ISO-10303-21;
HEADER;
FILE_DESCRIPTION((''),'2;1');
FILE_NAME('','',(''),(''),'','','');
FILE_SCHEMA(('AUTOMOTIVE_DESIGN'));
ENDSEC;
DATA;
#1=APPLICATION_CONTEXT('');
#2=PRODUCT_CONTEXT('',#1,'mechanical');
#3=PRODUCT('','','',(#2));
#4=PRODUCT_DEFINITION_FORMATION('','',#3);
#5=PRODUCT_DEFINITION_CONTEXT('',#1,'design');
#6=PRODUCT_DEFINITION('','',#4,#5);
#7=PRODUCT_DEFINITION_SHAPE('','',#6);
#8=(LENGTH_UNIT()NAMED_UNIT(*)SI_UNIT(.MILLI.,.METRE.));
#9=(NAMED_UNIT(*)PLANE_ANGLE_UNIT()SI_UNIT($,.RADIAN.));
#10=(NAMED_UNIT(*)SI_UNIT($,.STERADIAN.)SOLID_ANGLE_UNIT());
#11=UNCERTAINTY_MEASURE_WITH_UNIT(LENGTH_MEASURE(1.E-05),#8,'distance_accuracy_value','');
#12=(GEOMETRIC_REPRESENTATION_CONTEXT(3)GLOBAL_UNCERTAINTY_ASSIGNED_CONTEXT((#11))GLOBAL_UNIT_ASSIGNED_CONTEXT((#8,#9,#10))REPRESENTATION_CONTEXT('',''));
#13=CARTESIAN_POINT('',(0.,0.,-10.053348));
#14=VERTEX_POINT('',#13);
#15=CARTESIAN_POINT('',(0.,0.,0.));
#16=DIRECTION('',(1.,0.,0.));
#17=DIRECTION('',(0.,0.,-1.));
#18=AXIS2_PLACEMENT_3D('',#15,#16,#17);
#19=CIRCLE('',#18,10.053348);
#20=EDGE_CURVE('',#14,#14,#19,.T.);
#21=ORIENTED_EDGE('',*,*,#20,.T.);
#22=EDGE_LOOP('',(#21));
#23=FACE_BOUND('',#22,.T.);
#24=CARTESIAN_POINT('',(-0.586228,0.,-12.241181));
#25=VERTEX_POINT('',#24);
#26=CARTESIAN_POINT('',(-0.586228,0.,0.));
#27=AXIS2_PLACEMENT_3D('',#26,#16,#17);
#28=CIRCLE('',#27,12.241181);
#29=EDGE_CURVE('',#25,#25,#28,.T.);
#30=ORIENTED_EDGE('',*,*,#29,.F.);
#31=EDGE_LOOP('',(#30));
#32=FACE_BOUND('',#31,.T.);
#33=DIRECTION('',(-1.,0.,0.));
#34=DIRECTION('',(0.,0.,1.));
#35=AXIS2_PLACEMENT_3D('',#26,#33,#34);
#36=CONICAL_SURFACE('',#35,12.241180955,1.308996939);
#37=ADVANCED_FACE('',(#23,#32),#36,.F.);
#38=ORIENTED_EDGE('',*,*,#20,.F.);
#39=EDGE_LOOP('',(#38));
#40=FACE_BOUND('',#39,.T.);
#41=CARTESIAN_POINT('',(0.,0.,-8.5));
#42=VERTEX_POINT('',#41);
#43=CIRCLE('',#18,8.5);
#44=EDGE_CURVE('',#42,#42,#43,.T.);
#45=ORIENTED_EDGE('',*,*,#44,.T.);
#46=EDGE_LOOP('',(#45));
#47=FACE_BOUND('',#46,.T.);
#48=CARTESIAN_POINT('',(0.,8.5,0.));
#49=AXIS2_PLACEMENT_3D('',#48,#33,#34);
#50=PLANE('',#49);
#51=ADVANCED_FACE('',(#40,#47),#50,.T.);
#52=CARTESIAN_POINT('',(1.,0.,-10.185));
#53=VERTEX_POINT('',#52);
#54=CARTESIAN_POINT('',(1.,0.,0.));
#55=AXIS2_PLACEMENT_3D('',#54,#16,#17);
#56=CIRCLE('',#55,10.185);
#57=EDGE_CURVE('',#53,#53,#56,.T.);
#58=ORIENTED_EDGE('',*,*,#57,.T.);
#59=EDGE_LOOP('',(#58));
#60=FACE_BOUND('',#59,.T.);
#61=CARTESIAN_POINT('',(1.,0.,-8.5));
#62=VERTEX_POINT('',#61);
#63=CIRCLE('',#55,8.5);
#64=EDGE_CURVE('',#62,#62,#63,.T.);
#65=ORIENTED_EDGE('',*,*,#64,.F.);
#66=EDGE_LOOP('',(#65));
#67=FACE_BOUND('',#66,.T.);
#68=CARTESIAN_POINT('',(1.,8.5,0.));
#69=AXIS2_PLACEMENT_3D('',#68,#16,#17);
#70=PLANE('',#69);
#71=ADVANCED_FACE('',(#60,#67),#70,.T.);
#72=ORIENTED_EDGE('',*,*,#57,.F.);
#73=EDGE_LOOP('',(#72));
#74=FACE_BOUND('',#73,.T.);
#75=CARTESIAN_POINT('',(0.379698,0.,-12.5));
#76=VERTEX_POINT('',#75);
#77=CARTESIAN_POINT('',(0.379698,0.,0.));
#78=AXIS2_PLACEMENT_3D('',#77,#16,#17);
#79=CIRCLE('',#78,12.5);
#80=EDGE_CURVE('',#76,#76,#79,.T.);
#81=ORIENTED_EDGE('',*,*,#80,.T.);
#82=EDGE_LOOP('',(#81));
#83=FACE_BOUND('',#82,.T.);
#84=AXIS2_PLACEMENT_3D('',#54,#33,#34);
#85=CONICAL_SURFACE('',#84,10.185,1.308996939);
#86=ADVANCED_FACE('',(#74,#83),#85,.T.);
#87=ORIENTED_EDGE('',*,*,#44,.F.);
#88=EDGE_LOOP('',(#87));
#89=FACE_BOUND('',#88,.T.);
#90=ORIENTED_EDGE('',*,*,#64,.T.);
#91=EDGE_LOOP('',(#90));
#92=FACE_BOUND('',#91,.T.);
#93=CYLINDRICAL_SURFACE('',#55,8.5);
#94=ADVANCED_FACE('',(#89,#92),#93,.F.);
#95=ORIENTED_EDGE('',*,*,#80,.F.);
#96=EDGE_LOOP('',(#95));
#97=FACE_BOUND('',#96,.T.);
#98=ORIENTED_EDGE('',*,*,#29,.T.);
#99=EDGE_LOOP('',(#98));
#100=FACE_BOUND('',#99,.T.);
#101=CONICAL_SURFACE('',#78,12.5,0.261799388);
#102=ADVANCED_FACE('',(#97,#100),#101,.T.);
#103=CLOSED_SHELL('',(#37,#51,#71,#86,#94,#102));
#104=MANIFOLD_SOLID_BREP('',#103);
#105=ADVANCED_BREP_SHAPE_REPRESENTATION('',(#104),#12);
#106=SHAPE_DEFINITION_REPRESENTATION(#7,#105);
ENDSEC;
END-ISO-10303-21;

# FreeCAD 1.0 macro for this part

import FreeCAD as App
import Part
import Sketcher
from FreeCAD import Vector
Q = App.Units.Quantity

doc = App.newDocument("Part")
params = doc.addObject("Spreadsheet::Sheet", "Params")
for row, (alias, value) in enumerate([
    ("sketch1_width", "1 mm"),
    ("sketch1_length", "1 mm"),
    ("revolution_angle", "360 deg"),
], start=1):
    params.set(f"A{row}", alias)
    params.set(f"B{row}", "=" + value)
    params.setAlias(f"B{row}", alias)

body = doc.addObject("PartDesign::Body", "Body")

# Sketch on XY plane
sketch1 = doc.addObject("Sketcher::SketchObject", "Sketch")
body.addObject(sketch1)
sketch1.AttachmentSupport = (doc.XY_Plane, [""])
sketch1.MapMode = "FlatFace"
sketch1.addGeometry(Part.LineSegment(Vector(0, 8.5, 0), Vector(1, 8.5, 0)), False)
sketch1.addGeometry(Part.LineSegment(Vector(1, 8.5, 0), Vector(1, 10.2, 0)), False)
sketch1.addGeometry(Part.LineSegment(Vector(1, 10.2, 0), Vector(0.4, 12.5, 0)), False)
sketch1.addGeometry(Part.LineSegment(Vector(0.4, 12.5, 0), Vector(-0.6, 12.2, 0)), False)
sketch1.addGeometry(Part.LineSegment(Vector(-0.6, 12.2, 0), Vector(0, 10.1, 0)), False)
sketch1.addGeometry(Part.LineSegment(Vector(0, 10.1, 0), Vector(0, 8.5, 0)), False)
sketch1.addConstraint(Sketcher.Constraint("Coincident", 0, 2, 1, 1))
sketch1.addConstraint(Sketcher.Constraint("Coincident", 1, 2, 2, 1))
sketch1.addConstraint(Sketcher.Constraint("Coincident", 2, 2, 3, 1))
sketch1.addConstraint(Sketcher.Constraint("Coincident", 3, 2, 4, 1))
sketch1.addConstraint(Sketcher.Constraint("Coincident", 4, 2, 5, 1))
sketch1.addConstraint(Sketcher.Constraint("Coincident", 5, 2, 0, 1))
sketch1.addConstraint(Sketcher.Constraint("Horizontal", 0))
sketch1.addConstraint(Sketcher.Constraint("Vertical", 1))
sketch1.addConstraint(Sketcher.Constraint("Vertical", 5))
sketch1.addConstraint(Sketcher.Constraint("PointOnObject", 4, 2, -2))
sketch1.addConstraint(Sketcher.Constraint("Perpendicular", 2, 3))
sketch1.addConstraint(Sketcher.Constraint("Perpendicular", 3, 4))
sketch1.addConstraint(Sketcher.Constraint("DistanceX", 0, 1, 0, 2, 1.0))
sketch1.addConstraint(Sketcher.Constraint("Angle", 2, Q("105 deg")))
sketch1.addConstraint(Sketcher.Constraint("Distance", 3, 1.0))
sketch1.addConstraint(Sketcher.Constraint("DistanceY", 0, 2, 2, 2, 4.0))
sketch1.addConstraint(Sketcher.Constraint("DistanceY", -1, 1, 0, 2, 8.5))
sketch1.addConstraint(Sketcher.Constraint("DistanceY", 1, 1, 1, 2, 1.685))
sketch1.setExpression("Constraints[12]", "Params.sketch1_width")
sketch1.setExpression("Constraints[14]", "Params.sketch1_length")
revolution = doc.addObject("PartDesign::Revolution", "Revolution")
body.addObject(revolution)
revolution.Profile = sketch1
revolution.ReferenceAxis = (sketch1, ["H_Axis"])
revolution.setExpression("Angle", "Params.revolution_angle")

doc.recompute()
